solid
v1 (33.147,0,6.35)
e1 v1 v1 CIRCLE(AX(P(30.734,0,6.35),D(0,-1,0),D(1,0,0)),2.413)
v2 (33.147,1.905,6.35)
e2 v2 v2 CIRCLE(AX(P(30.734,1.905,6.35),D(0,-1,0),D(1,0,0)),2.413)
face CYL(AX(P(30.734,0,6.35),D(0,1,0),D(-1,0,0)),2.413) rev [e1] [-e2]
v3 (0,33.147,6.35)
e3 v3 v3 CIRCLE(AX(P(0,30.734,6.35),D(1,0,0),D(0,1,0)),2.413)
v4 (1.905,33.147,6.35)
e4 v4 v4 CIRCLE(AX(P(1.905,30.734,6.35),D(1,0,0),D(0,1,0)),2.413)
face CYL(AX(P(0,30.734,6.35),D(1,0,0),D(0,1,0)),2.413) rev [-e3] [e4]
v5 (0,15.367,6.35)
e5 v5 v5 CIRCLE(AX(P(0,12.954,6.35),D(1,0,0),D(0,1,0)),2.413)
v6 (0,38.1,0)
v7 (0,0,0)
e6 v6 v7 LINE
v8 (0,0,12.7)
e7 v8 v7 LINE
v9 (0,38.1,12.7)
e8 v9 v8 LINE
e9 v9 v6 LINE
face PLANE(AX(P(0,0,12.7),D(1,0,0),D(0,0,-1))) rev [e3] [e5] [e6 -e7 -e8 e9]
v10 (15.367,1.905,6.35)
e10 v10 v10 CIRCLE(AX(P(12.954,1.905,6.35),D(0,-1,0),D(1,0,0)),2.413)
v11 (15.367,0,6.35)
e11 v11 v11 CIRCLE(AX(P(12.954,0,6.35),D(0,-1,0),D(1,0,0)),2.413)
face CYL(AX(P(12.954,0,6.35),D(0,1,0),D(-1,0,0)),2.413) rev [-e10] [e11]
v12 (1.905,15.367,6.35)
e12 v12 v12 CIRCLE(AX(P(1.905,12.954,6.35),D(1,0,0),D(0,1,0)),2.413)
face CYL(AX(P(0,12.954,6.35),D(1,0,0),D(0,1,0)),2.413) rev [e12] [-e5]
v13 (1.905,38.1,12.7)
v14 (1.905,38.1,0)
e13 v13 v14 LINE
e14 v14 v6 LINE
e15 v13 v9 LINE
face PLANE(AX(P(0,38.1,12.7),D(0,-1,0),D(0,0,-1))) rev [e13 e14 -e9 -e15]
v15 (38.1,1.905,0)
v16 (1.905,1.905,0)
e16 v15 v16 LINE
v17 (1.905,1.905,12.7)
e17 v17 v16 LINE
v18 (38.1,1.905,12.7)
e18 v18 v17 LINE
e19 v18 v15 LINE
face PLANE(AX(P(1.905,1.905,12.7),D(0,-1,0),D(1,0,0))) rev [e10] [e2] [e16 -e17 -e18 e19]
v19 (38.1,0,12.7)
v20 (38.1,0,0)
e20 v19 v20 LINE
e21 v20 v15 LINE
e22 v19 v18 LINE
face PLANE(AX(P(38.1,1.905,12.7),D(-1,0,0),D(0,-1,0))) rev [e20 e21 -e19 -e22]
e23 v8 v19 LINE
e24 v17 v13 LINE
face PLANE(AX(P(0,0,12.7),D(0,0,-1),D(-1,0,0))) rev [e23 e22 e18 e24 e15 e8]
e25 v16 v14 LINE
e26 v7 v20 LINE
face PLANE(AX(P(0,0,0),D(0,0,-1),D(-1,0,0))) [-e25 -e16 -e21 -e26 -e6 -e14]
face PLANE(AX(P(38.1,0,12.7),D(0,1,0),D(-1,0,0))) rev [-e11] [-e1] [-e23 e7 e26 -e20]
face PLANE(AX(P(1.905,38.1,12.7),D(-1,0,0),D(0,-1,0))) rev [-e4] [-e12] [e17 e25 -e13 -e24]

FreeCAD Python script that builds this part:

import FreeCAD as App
import Part
import Sketcher

V = App.Vector
Q = App.Units.Quantity


def add_polygon(sketch, points):
    """Adds a closed chain of lines whose ends are joined by coincident constraints."""
    first, n = sketch.GeometryCount, len(points)
    for a, b in zip(points, points[1:] + points[:1]):
        sketch.addGeometry(Part.LineSegment(App.Vector(*a, 0), App.Vector(*b, 0)), False)
    for i in range(n):
        sketch.addConstraint(Sketcher.Constraint("Coincident", first + i, 2, first + (i + 1) % n, 1))

doc = App.newDocument("Part")
body = doc.addObject("PartDesign::Body", "Body")

sketch1 = body.newObject("Sketcher::SketchObject", "Sketch")
sketch1.AttachmentSupport = (doc.getObject("XY_Plane"), [""])
sketch1.MapMode = "FlatFace"
add_polygon(sketch1, [(0, 38.1), (0, 0), (38.1, 0), (38.1, 1.9), (1.9, 1.9), (1.9, 38.1)])
sketch1.addConstraint([
    Sketcher.Constraint("Vertical", 0),
    Sketcher.Constraint("Horizontal", 1),
    Sketcher.Constraint("Vertical", 2),
    Sketcher.Constraint("Horizontal", 3),
    Sketcher.Constraint("Vertical", 4),
    Sketcher.Constraint("Horizontal", 5),
    Sketcher.Constraint("Coincident", 0, 2, -1, 1),
    Sketcher.Constraint("Equal", 1, 0),
    Sketcher.Constraint("Equal", 5, 2),
    Sketcher.Constraint("DistanceX", 1, 1, 1, 2, Q("1.5 in")),
    Sketcher.Constraint("DistanceX", 3, 2, 3, 1, Q("1.425 in")),
])
pad1 = body.newObject("PartDesign::Pad", "Pad")
pad1.Profile = sketch1
pad1.Length = Q("0.5 in")

sketch2 = body.newObject("Sketcher::SketchObject", "Sketch001")
sketch2.AttachmentSupport = (doc.getObject("YZ_Plane"), [""])
sketch2.MapMode = "FlatFace"
sketch2.AttachmentOffset = App.Placement(V(0, 0, 0.075 * 25.4), App.Rotation())
sketch2.addGeometry([
    Part.Circle(V(30.7, 6.3, 0), V(0, 0, 1), 2.4),
    Part.Circle(V(13, 6.3, 0), V(0, 0, 1), 2.4),
], False)
sketch2.addConstraint([
    Sketcher.Constraint("Equal", 0, 1),
    Sketcher.Constraint("Horizontal", 0, 3, 1, 3),
    Sketcher.Constraint("Diameter", 0, Q("0.19 in")),
    Sketcher.Constraint("DistanceX", 1, 3, 0, 3, Q("0.7 in")),
    Sketcher.Constraint("DistanceX", -1, 1, 0, 3, Q("1.21 in")),
    Sketcher.Constraint("DistanceY", -1, 1, 0, 3, Q("0.25 in")),
])
pocket1 = body.newObject("PartDesign::Pocket", "Pocket")
pocket1.Profile = sketch2
pocket1.Type = "ThroughAll"
doc.recompute()

datumplane = body.newObject("PartDesign::Plane", "DatumPlane")
datumplane.Placement = App.Placement(V(0, 0, 0), App.Rotation(V(0.707106781, 0.707106781, 0), V(0, 0, -1), V(-0.707106781, 0.707106781, 0), "ZXY"))
mirrored = body.newObject("PartDesign::Mirrored", "Mirrored")
mirrored.Originals = [pocket1]
mirrored.MirrorPlane = (datumplane, [""])
body.Tip = mirrored

doc.recompute()
